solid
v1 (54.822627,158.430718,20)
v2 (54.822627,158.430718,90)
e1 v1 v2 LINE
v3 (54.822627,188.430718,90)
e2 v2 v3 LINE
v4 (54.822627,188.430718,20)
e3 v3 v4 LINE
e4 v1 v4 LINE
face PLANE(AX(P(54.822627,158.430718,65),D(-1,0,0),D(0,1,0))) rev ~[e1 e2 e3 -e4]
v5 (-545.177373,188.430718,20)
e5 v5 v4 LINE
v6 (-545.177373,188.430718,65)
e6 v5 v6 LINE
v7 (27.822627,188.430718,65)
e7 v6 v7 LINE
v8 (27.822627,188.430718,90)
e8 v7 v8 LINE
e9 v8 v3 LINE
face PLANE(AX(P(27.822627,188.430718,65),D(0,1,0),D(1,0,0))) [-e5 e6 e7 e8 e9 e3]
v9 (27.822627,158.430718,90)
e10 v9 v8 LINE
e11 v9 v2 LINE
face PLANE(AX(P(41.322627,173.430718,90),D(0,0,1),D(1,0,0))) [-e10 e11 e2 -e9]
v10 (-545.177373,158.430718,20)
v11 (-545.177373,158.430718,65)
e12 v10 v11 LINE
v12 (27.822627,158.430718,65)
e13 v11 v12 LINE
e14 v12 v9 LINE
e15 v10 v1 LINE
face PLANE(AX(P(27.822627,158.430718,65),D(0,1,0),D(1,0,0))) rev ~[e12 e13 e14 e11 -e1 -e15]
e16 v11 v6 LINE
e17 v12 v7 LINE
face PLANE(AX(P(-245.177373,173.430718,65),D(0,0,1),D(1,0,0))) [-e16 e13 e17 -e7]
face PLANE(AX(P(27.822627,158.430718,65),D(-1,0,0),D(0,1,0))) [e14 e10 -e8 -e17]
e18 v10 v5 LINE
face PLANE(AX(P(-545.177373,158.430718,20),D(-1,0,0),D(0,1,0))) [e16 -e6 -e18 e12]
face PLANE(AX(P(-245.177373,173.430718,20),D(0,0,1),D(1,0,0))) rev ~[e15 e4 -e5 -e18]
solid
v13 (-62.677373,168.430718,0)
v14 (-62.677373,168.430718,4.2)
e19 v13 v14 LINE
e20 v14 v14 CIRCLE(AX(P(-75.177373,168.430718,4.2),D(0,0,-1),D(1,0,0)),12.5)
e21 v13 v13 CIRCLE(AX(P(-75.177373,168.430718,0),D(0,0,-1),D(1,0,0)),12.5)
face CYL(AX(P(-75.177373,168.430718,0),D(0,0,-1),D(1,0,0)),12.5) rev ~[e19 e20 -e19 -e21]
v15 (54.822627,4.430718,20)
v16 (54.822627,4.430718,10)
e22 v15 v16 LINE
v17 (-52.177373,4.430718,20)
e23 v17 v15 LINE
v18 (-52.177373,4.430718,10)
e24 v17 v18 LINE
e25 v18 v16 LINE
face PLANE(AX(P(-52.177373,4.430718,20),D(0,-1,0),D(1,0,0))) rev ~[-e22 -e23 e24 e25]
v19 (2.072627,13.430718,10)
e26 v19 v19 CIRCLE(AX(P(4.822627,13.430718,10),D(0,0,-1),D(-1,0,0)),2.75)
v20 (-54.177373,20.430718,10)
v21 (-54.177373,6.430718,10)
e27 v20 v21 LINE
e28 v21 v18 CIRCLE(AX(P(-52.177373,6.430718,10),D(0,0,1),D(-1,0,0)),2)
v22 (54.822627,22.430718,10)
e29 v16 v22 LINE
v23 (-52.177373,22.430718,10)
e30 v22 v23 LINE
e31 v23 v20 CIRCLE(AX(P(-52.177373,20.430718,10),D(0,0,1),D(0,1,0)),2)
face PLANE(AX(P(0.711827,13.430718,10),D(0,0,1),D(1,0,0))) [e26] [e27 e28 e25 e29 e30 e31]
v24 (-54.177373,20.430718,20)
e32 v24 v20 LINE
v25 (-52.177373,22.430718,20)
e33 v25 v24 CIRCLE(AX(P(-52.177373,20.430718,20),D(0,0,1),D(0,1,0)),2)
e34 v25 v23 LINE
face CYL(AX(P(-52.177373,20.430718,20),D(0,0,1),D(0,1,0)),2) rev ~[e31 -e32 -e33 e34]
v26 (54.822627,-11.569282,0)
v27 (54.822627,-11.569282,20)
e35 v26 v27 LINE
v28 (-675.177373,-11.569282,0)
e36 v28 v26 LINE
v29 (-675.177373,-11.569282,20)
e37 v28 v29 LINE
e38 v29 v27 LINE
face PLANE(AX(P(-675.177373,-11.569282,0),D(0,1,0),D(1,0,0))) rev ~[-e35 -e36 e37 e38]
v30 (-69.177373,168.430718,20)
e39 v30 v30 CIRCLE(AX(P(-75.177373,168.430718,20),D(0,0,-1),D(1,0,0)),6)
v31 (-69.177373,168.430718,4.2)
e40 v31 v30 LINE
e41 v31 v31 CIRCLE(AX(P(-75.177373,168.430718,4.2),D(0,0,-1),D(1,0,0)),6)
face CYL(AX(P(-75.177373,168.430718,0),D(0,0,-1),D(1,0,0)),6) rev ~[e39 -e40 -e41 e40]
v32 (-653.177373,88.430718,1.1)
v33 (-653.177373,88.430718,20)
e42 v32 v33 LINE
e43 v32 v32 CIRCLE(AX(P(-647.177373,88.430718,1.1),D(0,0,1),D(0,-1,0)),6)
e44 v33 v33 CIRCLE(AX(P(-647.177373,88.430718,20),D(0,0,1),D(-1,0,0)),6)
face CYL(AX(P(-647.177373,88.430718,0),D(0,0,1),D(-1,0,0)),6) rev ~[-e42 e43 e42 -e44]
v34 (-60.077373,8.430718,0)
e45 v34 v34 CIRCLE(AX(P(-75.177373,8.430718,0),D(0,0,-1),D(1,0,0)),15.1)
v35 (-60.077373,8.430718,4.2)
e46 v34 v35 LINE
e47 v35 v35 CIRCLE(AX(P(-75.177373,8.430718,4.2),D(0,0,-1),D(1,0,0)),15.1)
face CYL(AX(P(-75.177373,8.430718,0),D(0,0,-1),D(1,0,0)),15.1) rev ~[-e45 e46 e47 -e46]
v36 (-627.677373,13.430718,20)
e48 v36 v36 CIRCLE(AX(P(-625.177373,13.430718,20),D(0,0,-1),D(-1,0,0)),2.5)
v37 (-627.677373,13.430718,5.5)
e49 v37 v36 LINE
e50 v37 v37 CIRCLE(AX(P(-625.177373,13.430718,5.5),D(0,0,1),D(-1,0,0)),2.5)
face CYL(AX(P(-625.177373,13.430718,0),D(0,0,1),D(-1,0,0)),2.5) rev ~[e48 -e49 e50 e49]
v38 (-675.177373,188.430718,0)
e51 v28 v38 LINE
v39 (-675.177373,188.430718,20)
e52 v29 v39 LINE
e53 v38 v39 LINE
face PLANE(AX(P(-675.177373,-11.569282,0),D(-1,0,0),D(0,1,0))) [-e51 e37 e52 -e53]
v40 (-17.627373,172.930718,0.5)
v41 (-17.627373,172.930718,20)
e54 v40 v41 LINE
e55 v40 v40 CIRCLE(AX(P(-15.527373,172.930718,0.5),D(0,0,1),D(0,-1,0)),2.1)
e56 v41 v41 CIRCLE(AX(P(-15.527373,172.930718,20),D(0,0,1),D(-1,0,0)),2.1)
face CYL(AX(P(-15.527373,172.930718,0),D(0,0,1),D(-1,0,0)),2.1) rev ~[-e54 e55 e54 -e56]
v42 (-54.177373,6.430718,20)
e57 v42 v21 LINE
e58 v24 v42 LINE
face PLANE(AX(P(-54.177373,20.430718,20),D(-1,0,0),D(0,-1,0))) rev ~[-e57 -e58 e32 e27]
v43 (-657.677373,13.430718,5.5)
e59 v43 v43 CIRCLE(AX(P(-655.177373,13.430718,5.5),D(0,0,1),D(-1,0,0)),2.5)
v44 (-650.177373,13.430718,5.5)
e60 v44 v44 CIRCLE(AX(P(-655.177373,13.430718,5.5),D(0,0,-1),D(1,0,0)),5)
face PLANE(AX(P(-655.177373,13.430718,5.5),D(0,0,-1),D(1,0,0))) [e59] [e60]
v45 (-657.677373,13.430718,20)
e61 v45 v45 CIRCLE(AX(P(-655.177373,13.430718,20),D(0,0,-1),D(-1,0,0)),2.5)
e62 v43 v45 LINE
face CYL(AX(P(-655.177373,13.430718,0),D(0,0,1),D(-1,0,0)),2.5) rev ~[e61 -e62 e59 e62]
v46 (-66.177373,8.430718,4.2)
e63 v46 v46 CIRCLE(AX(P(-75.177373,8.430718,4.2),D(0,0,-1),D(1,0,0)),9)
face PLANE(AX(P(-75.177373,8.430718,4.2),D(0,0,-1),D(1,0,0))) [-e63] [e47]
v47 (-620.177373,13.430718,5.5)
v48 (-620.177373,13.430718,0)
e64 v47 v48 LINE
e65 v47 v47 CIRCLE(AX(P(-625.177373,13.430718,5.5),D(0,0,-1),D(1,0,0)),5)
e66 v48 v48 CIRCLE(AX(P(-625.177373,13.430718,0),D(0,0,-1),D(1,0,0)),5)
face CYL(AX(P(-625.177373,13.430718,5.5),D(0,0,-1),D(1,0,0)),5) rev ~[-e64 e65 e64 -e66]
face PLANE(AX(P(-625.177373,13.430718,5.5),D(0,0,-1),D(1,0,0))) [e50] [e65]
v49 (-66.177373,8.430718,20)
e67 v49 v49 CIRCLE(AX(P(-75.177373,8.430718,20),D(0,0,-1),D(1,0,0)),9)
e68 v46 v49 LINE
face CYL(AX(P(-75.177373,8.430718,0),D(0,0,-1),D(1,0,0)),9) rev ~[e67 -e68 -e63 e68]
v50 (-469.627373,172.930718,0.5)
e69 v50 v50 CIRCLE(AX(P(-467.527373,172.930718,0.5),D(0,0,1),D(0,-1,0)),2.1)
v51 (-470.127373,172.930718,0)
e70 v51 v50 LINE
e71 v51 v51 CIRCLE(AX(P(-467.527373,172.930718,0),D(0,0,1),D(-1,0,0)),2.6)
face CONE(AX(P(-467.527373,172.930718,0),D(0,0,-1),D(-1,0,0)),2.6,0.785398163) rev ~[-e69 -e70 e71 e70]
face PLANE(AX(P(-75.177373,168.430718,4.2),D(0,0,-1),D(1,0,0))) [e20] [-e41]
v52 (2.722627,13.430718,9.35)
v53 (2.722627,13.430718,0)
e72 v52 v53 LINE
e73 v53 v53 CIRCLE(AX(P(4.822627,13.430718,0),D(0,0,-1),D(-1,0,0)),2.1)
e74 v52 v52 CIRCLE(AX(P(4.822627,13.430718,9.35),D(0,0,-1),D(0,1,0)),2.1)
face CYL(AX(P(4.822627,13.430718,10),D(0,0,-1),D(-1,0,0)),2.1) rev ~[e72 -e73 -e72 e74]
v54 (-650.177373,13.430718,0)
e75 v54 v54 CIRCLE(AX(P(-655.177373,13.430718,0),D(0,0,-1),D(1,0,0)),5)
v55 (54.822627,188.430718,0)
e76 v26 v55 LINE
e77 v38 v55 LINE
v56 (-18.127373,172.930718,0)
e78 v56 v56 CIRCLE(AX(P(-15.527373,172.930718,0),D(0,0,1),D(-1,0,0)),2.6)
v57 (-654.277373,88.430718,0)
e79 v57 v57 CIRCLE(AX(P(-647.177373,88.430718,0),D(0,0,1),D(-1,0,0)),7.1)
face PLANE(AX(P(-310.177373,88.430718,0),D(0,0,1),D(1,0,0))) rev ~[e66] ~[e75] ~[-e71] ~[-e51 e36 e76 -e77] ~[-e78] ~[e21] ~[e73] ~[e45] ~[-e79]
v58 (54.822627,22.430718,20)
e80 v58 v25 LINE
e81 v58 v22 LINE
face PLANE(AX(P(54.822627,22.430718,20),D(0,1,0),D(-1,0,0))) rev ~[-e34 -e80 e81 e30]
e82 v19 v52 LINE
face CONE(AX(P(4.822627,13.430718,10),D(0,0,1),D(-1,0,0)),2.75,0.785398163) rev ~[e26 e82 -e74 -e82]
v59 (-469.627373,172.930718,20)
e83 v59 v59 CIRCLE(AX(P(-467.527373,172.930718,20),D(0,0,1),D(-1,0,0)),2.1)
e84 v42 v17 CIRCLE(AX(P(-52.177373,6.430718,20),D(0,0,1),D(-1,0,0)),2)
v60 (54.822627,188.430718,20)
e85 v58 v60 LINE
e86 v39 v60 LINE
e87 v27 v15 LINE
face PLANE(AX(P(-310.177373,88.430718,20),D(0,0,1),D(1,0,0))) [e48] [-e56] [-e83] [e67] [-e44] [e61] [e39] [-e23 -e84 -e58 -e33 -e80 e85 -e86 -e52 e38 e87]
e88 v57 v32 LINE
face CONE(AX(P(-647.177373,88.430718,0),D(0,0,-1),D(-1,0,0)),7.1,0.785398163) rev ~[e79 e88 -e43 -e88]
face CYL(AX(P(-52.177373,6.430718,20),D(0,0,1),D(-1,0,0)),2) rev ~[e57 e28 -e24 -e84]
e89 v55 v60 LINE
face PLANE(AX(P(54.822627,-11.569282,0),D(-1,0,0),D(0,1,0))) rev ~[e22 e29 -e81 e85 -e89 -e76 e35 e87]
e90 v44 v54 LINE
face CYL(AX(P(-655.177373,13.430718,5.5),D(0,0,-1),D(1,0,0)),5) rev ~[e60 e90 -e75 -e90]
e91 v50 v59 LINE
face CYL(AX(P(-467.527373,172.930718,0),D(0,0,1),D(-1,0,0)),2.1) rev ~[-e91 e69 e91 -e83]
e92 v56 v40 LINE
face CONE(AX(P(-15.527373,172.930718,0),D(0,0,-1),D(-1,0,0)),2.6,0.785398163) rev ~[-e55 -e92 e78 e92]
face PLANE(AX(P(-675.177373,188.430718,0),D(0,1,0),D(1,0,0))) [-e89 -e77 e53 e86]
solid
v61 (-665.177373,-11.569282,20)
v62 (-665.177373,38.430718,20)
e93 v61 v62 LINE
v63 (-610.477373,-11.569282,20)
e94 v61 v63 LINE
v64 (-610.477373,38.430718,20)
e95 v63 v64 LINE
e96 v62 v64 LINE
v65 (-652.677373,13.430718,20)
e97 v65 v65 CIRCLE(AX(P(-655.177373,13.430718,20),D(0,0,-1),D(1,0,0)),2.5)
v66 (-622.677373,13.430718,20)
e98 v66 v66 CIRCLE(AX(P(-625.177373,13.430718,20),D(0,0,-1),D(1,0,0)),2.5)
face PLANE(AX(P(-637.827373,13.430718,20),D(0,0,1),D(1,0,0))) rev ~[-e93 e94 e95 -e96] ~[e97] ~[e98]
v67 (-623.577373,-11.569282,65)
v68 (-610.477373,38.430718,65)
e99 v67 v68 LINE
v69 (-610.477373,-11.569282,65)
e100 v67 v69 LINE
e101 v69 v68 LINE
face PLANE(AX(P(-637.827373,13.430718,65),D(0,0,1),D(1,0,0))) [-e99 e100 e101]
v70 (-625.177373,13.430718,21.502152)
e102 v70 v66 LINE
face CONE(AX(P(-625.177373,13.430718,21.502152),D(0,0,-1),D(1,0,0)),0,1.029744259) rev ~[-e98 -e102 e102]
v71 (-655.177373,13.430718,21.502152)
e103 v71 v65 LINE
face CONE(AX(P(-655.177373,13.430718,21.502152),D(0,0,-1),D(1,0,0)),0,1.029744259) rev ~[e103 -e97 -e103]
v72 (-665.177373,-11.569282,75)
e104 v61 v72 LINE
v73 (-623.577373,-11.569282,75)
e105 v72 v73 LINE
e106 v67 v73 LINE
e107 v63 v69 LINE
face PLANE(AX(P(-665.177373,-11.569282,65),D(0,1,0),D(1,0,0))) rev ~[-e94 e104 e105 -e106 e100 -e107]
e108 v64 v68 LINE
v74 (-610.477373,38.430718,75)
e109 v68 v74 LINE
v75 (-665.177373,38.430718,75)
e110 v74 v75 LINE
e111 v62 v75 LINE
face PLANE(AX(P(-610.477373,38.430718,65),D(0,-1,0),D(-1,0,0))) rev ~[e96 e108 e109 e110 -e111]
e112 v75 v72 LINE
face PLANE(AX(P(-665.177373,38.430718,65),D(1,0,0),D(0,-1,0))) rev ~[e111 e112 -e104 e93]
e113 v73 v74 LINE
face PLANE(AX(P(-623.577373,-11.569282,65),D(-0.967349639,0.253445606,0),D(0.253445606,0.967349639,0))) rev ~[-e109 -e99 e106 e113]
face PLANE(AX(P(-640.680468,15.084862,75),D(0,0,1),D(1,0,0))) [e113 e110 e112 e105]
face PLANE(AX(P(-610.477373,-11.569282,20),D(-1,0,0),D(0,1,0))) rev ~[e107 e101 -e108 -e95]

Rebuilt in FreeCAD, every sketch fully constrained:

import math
import FreeCAD as App
import Part
import Sketcher

V = App.Vector
Q = App.Units.Quantity


def add_polygon(sketch, points):
    """Adds a closed chain of lines whose ends are joined by coincident constraints."""
    first, n = sketch.GeometryCount, len(points)
    for a, b in zip(points, points[1:] + points[:1]):
        sketch.addGeometry(Part.LineSegment(App.Vector(*a, 0), App.Vector(*b, 0)), False)
    for i in range(n):
        sketch.addConstraint(Sketcher.Constraint("Coincident", first + i, 2, first + (i + 1) % n, 1))

doc = App.newDocument("Part")
body = doc.addObject("PartDesign::Body", "Body")

sketch1 = body.newObject("Sketcher::SketchObject", "Sketch")
sketch1.AttachmentSupport = (doc.getObject("XY_Plane"), [""])
sketch1.MapMode = "FlatFace"
add_polygon(sketch1, [(-675, 188), (-675, -12), (55, -12), (55, 188)])
sketch1.addConstraint([
    Sketcher.Constraint("Vertical", 0),
    Sketcher.Constraint("Horizontal", 1),
    Sketcher.Constraint("Vertical", 2),
    Sketcher.Constraint("Horizontal", 3),
    Sketcher.Constraint("DistanceX", 1, 1, 1, 2, Q("730 mm")),
    Sketcher.Constraint("DistanceY", 0, 2, 0, 1, Q("200 mm")),
    Sketcher.Constraint("DistanceX", 0, 2, -1, 1, Q("675.177373 mm")),
    Sketcher.Constraint("DistanceY", 0, 2, -1, 1, Q("11.569282 mm")),
])
pad1 = body.newObject("PartDesign::Pad", "Pad")
pad1.Profile = sketch1
pad1.Length = 20

sketch2 = body.newObject("Sketcher::SketchObject", "Sketch001")
sketch2.AttachmentSupport = (doc.getObject("XY_Plane"), [""])
sketch2.MapMode = "FlatFace"
sketch2.AttachmentOffset = App.Placement(V(0, 0, 20), App.Rotation())
sketch2.addGeometry([
    Part.LineSegment(V(54.8, 4.4, 0), V(54.8, 22.4, 0)),
    Part.LineSegment(V(54.8, 22.4, 0), V(-52.2, 22.4, 0)),
    Part.ArcOfCircle(Part.Circle(V(-52.2, 20.4, 0), V(0, 0, 1), 2), math.radians(90), math.radians(180)),
    Part.LineSegment(V(-54.2, 20.4, 0), V(-54.2, 6.4, 0)),
    Part.ArcOfCircle(Part.Circle(V(-52.2, 6.4, 0), V(0, 0, 1), 2), math.radians(180), math.radians(270)),
    Part.LineSegment(V(-52.2, 4.4, 0), V(54.8, 4.4, 0)),
], False)
sketch2.addConstraint([
    Sketcher.Constraint("Coincident", 0, 2, 1, 1),
    Sketcher.Constraint("Tangent", 1, 2, 2, 1),
    Sketcher.Constraint("Tangent", 2, 2, 3, 1),
    Sketcher.Constraint("Tangent", 3, 2, 4, 1),
    Sketcher.Constraint("Tangent", 4, 2, 5, 1),
    Sketcher.Constraint("Coincident", 5, 2, 0, 1),
    Sketcher.Constraint("Vertical", 0),
    Sketcher.Constraint("Horizontal", 1),
    Sketcher.Constraint("Vertical", 3),
    Sketcher.Constraint("Horizontal", 5),
    Sketcher.Constraint("Equal", 2, 4),
    Sketcher.Constraint("Radius", 2, Q("2 mm")),
    Sketcher.Constraint("DistanceX", 1, 2, 1, 1, Q("107 mm")),
    Sketcher.Constraint("DistanceY", 0, 1, 0, 2, Q("18 mm")),
    Sketcher.Constraint("DistanceX", 2, 3, -1, 1, Q("52.177373 mm")),
    Sketcher.Constraint("DistanceY", -1, 1, 2, 3, Q("20.430718 mm")),
])
pocket1 = body.newObject("PartDesign::Pocket", "Pocket")
pocket1.Profile = sketch2
pocket1.Length = 10

sketch3 = body.newObject("Sketcher::SketchObject", "Sketch002")
sketch3.AttachmentSupport = (doc.getObject("XY_Plane"), [""])
sketch3.MapMode = "FlatFace"
sketch3.AttachmentOffset = App.Placement(V(0, 0, 10), App.Rotation())
sketch3.addGeometry(Part.Circle(V(4.8, 13.4, 0), V(0, 0, 1), 2.1), False)
sketch3.addConstraint([
    Sketcher.Constraint("Diameter", 0, Q("4.2 mm")),
    Sketcher.Constraint("DistanceX", -1, 1, 0, 3, Q("4.822627 mm")),
    Sketcher.Constraint("DistanceY", -1, 1, 0, 3, Q("13.430718 mm")),
])
doc.recompute()
hole = body.newObject("PartDesign::Hole", "Hole")
hole.Profile = sketch3
hole.ThreadType = "None"
hole.Diameter = 4.2
hole.DepthType = "ThroughAll"
hole.HoleCutType = "Countersink"
hole.HoleCutDiameter = 5.5
hole.HoleCutCountersinkAngle = 90

sketch4 = body.newObject("Sketcher::SketchObject", "Sketch003")
sketch4.AttachmentSupport = (doc.getObject("XY_Plane"), [""])
sketch4.MapMode = "FlatFace"
sketch4.addGeometry([
    Part.Circle(V(-15.5, 172.9, 0), V(0, 0, 1), 2.1),
    Part.Circle(V(-467.5, 172.9, 0), V(0, 0, 1), 2.1),
], False)
sketch4.addConstraint([
    Sketcher.Constraint("Equal", 0, 1),
    Sketcher.Constraint("Horizontal", 0, 3, 1, 3),
    Sketcher.Constraint("Diameter", 0, Q("4.2 mm")),
    Sketcher.Constraint("DistanceX", 1, 3, 0, 3, Q("452 mm")),
    Sketcher.Constraint("DistanceX", 0, 3, -1, 1, Q("15.527373 mm")),
    Sketcher.Constraint("DistanceY", -1, 1, 0, 3, Q("172.930718 mm")),
])
doc.recompute()
hole2 = body.newObject("PartDesign::Hole", "Hole001")
hole2.Profile = sketch4
hole2.ThreadType = "None"
hole2.Diameter = 4.2
hole2.DepthType = "ThroughAll"
hole2.HoleCutType = "Countersink"
hole2.HoleCutDiameter = 5.2
hole2.HoleCutCountersinkAngle = 90
hole2.Reversed = True

sketch5 = body.newObject("Sketcher::SketchObject", "Sketch004")
sketch5.AttachmentSupport = (doc.getObject("XY_Plane"), [""])
sketch5.MapMode = "FlatFace"
sketch5.addGeometry(Part.Circle(V(-647, 88, 0), V(0, 0, 1), 6), False)
sketch5.addConstraint([
    Sketcher.Constraint("Diameter", 0, Q("12 mm")),
    Sketcher.Constraint("DistanceX", 0, 3, -1, 1, Q("647.177373 mm")),
    Sketcher.Constraint("DistanceY", -1, 1, 0, 3, Q("88.430718 mm")),
])
doc.recompute()
hole3 = body.newObject("PartDesign::Hole", "Hole002")
hole3.Profile = sketch5
hole3.ThreadType = "None"
hole3.Diameter = 12
hole3.DepthType = "ThroughAll"
hole3.HoleCutType = "Countersink"
hole3.HoleCutDiameter = 14.2
hole3.HoleCutCountersinkAngle = 90
hole3.Reversed = True

sketch6 = body.newObject("Sketcher::SketchObject", "Sketch005")
sketch6.AttachmentSupport = (doc.getObject("XY_Plane"), [""])
sketch6.MapMode = "FlatFace"
sketch6.addGeometry([
    Part.Circle(V(-655.2, 13.4, 0), V(0, 0, 1), 2.5),
    Part.Circle(V(-625.2, 13.4, 0), V(0, 0, 1), 2.5),
], False)
sketch6.addConstraint([
    Sketcher.Constraint("Equal", 0, 1),
    Sketcher.Constraint("Horizontal", 0, 3, 1, 3),
    Sketcher.Constraint("Diameter", 0, Q("5 mm")),
    Sketcher.Constraint("DistanceX", 0, 3, 1, 3, Q("30 mm")),
    Sketcher.Constraint("DistanceX", 0, 3, -1, 1, Q("655.177373 mm")),
    Sketcher.Constraint("DistanceY", -1, 1, 0, 3, Q("13.430718 mm")),
])
doc.recompute()
hole4 = body.newObject("PartDesign::Hole", "Hole003")
hole4.Profile = sketch6
hole4.ThreadType = "None"
hole4.Diameter = 5
hole4.DepthType = "Dimension"
hole4.Depth = 20
hole4.DrillPoint = "Angled"
hole4.DrillPointAngle = 118
hole4.HoleCutType = "Counterbore"
hole4.HoleCutDiameter = 10
hole4.HoleCutDepth = 5.5
hole4.Reversed = True

sketch7 = body.newObject("Sketcher::SketchObject", "Sketch006")
sketch7.AttachmentSupport = (doc.getObject("XY_Plane"), [""])
sketch7.MapMode = "FlatFace"
sketch7.addGeometry([
    Part.Circle(V(-75, 8, 0), V(0, 0, 1), 9),
    Part.Circle(V(-75, 168, 0), V(0, 0, 1), 6),
], False)
sketch7.addConstraint([
    Sketcher.Constraint("Vertical", 0, 3, 1, 3),
    Sketcher.Constraint("Diameter", 0, Q("18 mm")),
    Sketcher.Constraint("Diameter", 1, Q("12 mm")),
    Sketcher.Constraint("DistanceY", 0, 3, 1, 3, Q("160 mm")),
    Sketcher.Constraint("DistanceX", 0, 3, -1, 1, Q("75.177373 mm")),
    Sketcher.Constraint("DistanceY", -1, 1, 0, 3, Q("8.430718 mm")),
])
pocket2 = body.newObject("PartDesign::Pocket", "Pocket001")
pocket2.Profile = sketch7
pocket2.Type = "ThroughAll"
pocket2.Reversed = True

sketch8 = body.newObject("Sketcher::SketchObject", "Sketch007")
sketch8.AttachmentSupport = (doc.getObject("XY_Plane"), [""])
sketch8.MapMode = "FlatFace"
sketch8.addGeometry([
    Part.Circle(V(-75, 8, 0), V(0, 0, 1), 15),
    Part.Circle(V(-75, 8, 0), V(0, 0, 1), 9),
    Part.Circle(V(-75, 168, 0), V(0, 0, 1), 12),
    Part.Circle(V(-75, 168, 0), V(0, 0, 1), 6),
], False)
sketch8.addConstraint([
    Sketcher.Constraint("Coincident", 1, 3, 0, 3),
    Sketcher.Constraint("Coincident", 3, 3, 2, 3),
    Sketcher.Constraint("Vertical", 1, 3, 2, 3),
    Sketcher.Constraint("Diameter", 1, Q("18 mm")),
    Sketcher.Constraint("Diameter", 2, Q("25 mm")),
    Sketcher.Constraint("Diameter", 3, Q("12 mm")),
    Sketcher.Constraint("Diameter", 0, Q("30.2 mm")),
    Sketcher.Constraint("DistanceY", 0, 3, 2, 3, Q("160 mm")),
    Sketcher.Constraint("DistanceX", 0, 3, -1, 1, Q("75.177373 mm")),
    Sketcher.Constraint("DistanceY", -1, 1, 0, 3, Q("8.430718 mm")),
])
pocket3 = body.newObject("PartDesign::Pocket", "Pocket002")
pocket3.Profile = sketch8
pocket3.Length = 4.2
pocket3.Reversed = True
body2 = doc.addObject("PartDesign::Body", "Body001")

sketch9 = body2.newObject("Sketcher::SketchObject", "Sketch008")
sketch9.AttachmentSupport = (doc.getObject("XY_Plane001"), [""])
sketch9.MapMode = "FlatFace"
sketch9.AttachmentOffset = App.Placement(V(0, 0, 20), App.Rotation())
add_polygon(sketch9, [(-545, 188), (-545, 158), (55, 158), (55, 188)])
sketch9.addConstraint([
    Sketcher.Constraint("Vertical", 0),
    Sketcher.Constraint("Horizontal", 1),
    Sketcher.Constraint("Vertical", 2),
    Sketcher.Constraint("Horizontal", 3),
    Sketcher.Constraint("DistanceX", 1, 1, 1, 2, Q("600 mm")),
    Sketcher.Constraint("DistanceY", 0, 2, 0, 1, Q("30 mm")),
    Sketcher.Constraint("DistanceX", 0, 2, -1, 1, Q("545.177373 mm")),
    Sketcher.Constraint("DistanceY", -1, 1, 0, 2, Q("158.430718 mm")),
])
pad2 = body2.newObject("PartDesign::Pad", "Pad001")
pad2.Profile = sketch9
pad2.Length = 45

sketch10 = body2.newObject("Sketcher::SketchObject", "Sketch009")
sketch10.AttachmentSupport = (doc.getObject("XY_Plane001"), [""])
sketch10.MapMode = "FlatFace"
sketch10.AttachmentOffset = App.Placement(V(0, 0, 65), App.Rotation())
add_polygon(sketch10, [(28, 188), (28, 158), (55, 158), (55, 188)])
sketch10.addConstraint([
    Sketcher.Constraint("Vertical", 0),
    Sketcher.Constraint("Horizontal", 1),
    Sketcher.Constraint("Vertical", 2),
    Sketcher.Constraint("Horizontal", 3),
    Sketcher.Constraint("DistanceX", 1, 1, 1, 2, Q("27 mm")),
    Sketcher.Constraint("DistanceY", 0, 2, 0, 1, Q("30 mm")),
    Sketcher.Constraint("DistanceX", -1, 1, 0, 2, Q("27.822627 mm")),
    Sketcher.Constraint("DistanceY", -1, 1, 0, 2, Q("158.430718 mm")),
])
pad3 = body2.newObject("PartDesign::Pad", "Pad002")
pad3.Profile = sketch10
pad3.Length = 25
body3 = doc.addObject("PartDesign::Body", "Body002")

sketch11 = body3.newObject("Sketcher::SketchObject", "Sketch010")
sketch11.AttachmentSupport = (doc.getObject("XY_Plane002"), [""])
sketch11.MapMode = "FlatFace"
sketch11.AttachmentOffset = App.Placement(V(0, 0, 20), App.Rotation())
add_polygon(sketch11, [(-665, 38), (-665, -12), (-610, -12), (-610, 38)])
sketch11.addConstraint([
    Sketcher.Constraint("Vertical", 0),
    Sketcher.Constraint("Horizontal", 1),
    Sketcher.Constraint("Vertical", 2),
    Sketcher.Constraint("Horizontal", 3),
    Sketcher.Constraint("DistanceY", 0, 2, 0, 1, Q("50 mm")),
    Sketcher.Constraint("DistanceX", 1, 1, 1, 2, Q("54.7 mm")),
    Sketcher.Constraint("DistanceX", 0, 2, -1, 1, Q("665.177373 mm")),
    Sketcher.Constraint("DistanceY", 0, 2, -1, 1, Q("11.569282 mm")),
])
pad4 = body3.newObject("PartDesign::Pad", "Pad003")
pad4.Profile = sketch11
pad4.Length = 45

sketch12 = body3.newObject("Sketcher::SketchObject", "Sketch011")
sketch12.AttachmentSupport = (doc.getObject("XY_Plane002"), [""])
sketch12.MapMode = "FlatFace"
sketch12.AttachmentOffset = App.Placement(V(0, 0, 65), App.Rotation())
add_polygon(sketch12, [(-610, 38), (-665, 38), (-665, -12), (-624, -12)])
sketch12.addConstraint([
    Sketcher.Constraint("Horizontal", 0),
    Sketcher.Constraint("Vertical", 1),
    Sketcher.Constraint("Horizontal", 2),
    Sketcher.Constraint("DistanceY", 1, 2, 1, 1, Q("50 mm")),
    Sketcher.Constraint("DistanceX", 0, 2, 0, 1, Q("54.7 mm")),
    Sketcher.Constraint("DistanceX", 2, 1, 2, 2, Q("41.6 mm")),
    Sketcher.Constraint("DistanceX", 0, 2, -1, 1, Q("665.177373 mm")),
    Sketcher.Constraint("DistanceY", -1, 1, 0, 2, Q("38.430718 mm")),
])
pad5 = body3.newObject("PartDesign::Pad", "Pad004")
pad5.Profile = sketch12
pad5.Length = 10

sketch13 = body3.newObject("Sketcher::SketchObject", "Sketch012")
sketch13.AttachmentSupport = (doc.getObject("XY_Plane002"), [""])
sketch13.MapMode = "FlatFace"
sketch13.addGeometry([
    Part.Circle(V(-655.2, 13.4, 0), V(0, 0, 1), 2.5),
    Part.Circle(V(-625.2, 13.4, 0), V(0, 0, 1), 2.5),
], False)
sketch13.addConstraint([
    Sketcher.Constraint("Equal", 0, 1),
    Sketcher.Constraint("Horizontal", 0, 3, 1, 3),
    Sketcher.Constraint("Diameter", 0, Q("5 mm")),
    Sketcher.Constraint("DistanceX", 0, 3, 1, 3, Q("30 mm")),
    Sketcher.Constraint("DistanceX", 0, 3, -1, 1, Q("655.177373 mm")),
    Sketcher.Constraint("DistanceY", -1, 1, 0, 3, Q("13.430718 mm")),
])
doc.recompute()
hole5 = body3.newObject("PartDesign::Hole", "Hole004")
hole5.Profile = sketch13
hole5.ThreadType = "None"
hole5.Diameter = 5
hole5.DepthType = "Dimension"
hole5.Depth = 20
hole5.DrillPoint = "Angled"
hole5.DrillPointAngle = 118
hole5.HoleCutType = "Counterbore"
hole5.HoleCutDiameter = 10
hole5.HoleCutDepth = 5.5
hole5.Reversed = True

doc.recompute()
